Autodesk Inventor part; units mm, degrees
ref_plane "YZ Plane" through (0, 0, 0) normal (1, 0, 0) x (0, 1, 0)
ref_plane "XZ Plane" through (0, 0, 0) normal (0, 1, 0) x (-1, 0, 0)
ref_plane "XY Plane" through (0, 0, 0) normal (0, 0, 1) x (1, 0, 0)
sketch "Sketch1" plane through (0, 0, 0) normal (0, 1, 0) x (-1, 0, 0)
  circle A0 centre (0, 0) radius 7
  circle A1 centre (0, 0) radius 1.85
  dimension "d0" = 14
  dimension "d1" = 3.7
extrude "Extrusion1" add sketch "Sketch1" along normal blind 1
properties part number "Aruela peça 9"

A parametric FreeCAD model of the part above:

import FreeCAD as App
import Part
import Sketcher

doc = App.newDocument("Part")
body = doc.addObject("PartDesign::Body", "Body")

sketch1 = body.newObject("Sketcher::SketchObject", "Sketch")
sketch1.AttachmentSupport = (doc.getObject("XZ_Plane"), [""])
sketch1.MapMode = "FlatFace"
sketch1.addGeometry([
    Part.Circle(App.Vector(0, 0, 0), App.Vector(0, 0, 1), 7),
    Part.Circle(App.Vector(0, 0, 0), App.Vector(0, 0, 1), 1.85),
], False)
sketch1.addConstraint([
    Sketcher.Constraint("Coincident", 0, 3, -1, 1),
    Sketcher.Constraint("Coincident", 1, 3, -1, 1),
    Sketcher.Constraint("Diameter", 0, 14.0),
    Sketcher.Constraint("Diameter", 1, 3.7),
])
pad1 = body.newObject("PartDesign::Pad", "Pad")
pad1.Profile = sketch1
pad1.Length = 1
pad1.Reversed = True

doc.recompute()
